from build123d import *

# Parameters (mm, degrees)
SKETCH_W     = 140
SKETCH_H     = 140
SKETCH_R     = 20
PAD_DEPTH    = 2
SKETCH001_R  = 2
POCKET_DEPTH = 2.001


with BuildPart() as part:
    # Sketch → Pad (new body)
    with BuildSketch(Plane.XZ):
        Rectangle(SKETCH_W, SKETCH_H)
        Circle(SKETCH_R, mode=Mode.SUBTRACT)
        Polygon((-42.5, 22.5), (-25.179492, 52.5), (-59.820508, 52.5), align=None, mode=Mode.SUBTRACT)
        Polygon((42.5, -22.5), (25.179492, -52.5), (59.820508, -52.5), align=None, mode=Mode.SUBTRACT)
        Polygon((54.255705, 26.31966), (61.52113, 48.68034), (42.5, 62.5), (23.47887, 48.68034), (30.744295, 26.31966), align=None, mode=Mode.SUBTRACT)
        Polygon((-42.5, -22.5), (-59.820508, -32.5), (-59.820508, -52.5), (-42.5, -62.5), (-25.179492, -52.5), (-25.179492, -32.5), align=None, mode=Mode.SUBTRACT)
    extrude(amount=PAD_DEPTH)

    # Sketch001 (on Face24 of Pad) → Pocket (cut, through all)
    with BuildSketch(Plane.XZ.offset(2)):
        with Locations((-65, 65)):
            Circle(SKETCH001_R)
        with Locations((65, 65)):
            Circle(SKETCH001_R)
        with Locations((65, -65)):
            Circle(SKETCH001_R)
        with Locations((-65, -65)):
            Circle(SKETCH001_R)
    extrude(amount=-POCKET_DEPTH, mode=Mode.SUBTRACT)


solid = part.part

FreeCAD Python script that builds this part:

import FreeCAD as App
import Part
import Sketcher
Q = App.Units.Quantity

doc = App.newDocument("Part")
body = doc.addObject("PartDesign::Body", "Body")

# Sketch on XZ plane
sketch1 = doc.addObject("Sketcher::SketchObject", "Sketch")
body.addObject(sketch1)
sketch1.AttachmentSupport = (doc.XZ_Plane, [""])
sketch1.MapMode = "FlatFace"
sketch1.addGeometry([
    Part.LineSegment(App.Vector(-70, 70, 0), App.Vector(-70, -70, 0)),  # 0
    Part.LineSegment(App.Vector(-70, -70, 0), App.Vector(70, -70, 0)),  # 1
    Part.LineSegment(App.Vector(70, -70, 0), App.Vector(70, 70, 0)),  # 2
    Part.LineSegment(App.Vector(70, 70, 0), App.Vector(-70, 70, 0)),  # 3
    Part.LineSegment(App.Vector(-60, -32, 0), App.Vector(-42, -22, 0)),  # 4
    Part.LineSegment(App.Vector(-42, -22, 0), App.Vector(-25, -32, 0)),  # 5
    Part.LineSegment(App.Vector(-25, -32, 0), App.Vector(-25, -52, 0)),  # 6
    Part.LineSegment(App.Vector(-25, -52, 0), App.Vector(-42, -62, 0)),  # 7
    Part.LineSegment(App.Vector(-42, -62, 0), App.Vector(-60, -52, 0)),  # 8
    Part.LineSegment(App.Vector(-60, -52, 0), App.Vector(-60, -32, 0)),  # 9
    Part.LineSegment(App.Vector(25, -52, 0), App.Vector(42, -22, 0)),  # 10
    Part.LineSegment(App.Vector(42, -22, 0), App.Vector(60, -52, 0)),  # 11
    Part.LineSegment(App.Vector(60, -52, 0), App.Vector(25, -52, 0)),  # 12
    Part.Circle(App.Vector(0, 0, 0), App.Vector(0, 0, 1), 20),  # 13
    Part.LineSegment(App.Vector(-25, 52, 0), App.Vector(-42, 22, 0)),  # 14
    Part.LineSegment(App.Vector(-42, 22, 0), App.Vector(-60, 52, 0)),  # 15
    Part.LineSegment(App.Vector(-60, 52, 0), App.Vector(-25, 52, 0)),  # 16
    Part.LineSegment(App.Vector(62, 49, 0), App.Vector(54, 26, 0)),  # 17
    Part.LineSegment(App.Vector(54, 26, 0), App.Vector(31, 26, 0)),  # 18
    Part.LineSegment(App.Vector(31, 26, 0), App.Vector(23, 49, 0)),  # 19
    Part.LineSegment(App.Vector(23, 49, 0), App.Vector(42, 62, 0)),  # 20
    Part.LineSegment(App.Vector(42, 62, 0), App.Vector(62, 49, 0)),  # 21
], False)
sketch1.addConstraint([
    Sketcher.Constraint("Coincident", 0, 2, 1, 1),
    Sketcher.Constraint("Coincident", 1, 2, 2, 1),
    Sketcher.Constraint("Coincident", 2, 2, 3, 1),
    Sketcher.Constraint("Coincident", 3, 2, 0, 1),
    Sketcher.Constraint("Coincident", 4, 2, 5, 1),
    Sketcher.Constraint("Coincident", 5, 2, 6, 1),
    Sketcher.Constraint("Coincident", 6, 2, 7, 1),
    Sketcher.Constraint("Coincident", 7, 2, 8, 1),
    Sketcher.Constraint("Coincident", 8, 2, 9, 1),
    Sketcher.Constraint("Coincident", 9, 2, 4, 1),
    Sketcher.Constraint("Coincident", 10, 2, 11, 1),
    Sketcher.Constraint("Coincident", 11, 2, 12, 1),
    Sketcher.Constraint("Coincident", 12, 2, 10, 1),
    Sketcher.Constraint("Coincident", 14, 2, 15, 1),
    Sketcher.Constraint("Coincident", 15, 2, 16, 1),
    Sketcher.Constraint("Coincident", 16, 2, 14, 1),
    Sketcher.Constraint("Coincident", 17, 2, 18, 1),
    Sketcher.Constraint("Coincident", 18, 2, 19, 1),
    Sketcher.Constraint("Coincident", 19, 2, 20, 1),
    Sketcher.Constraint("Coincident", 20, 2, 21, 1),
    Sketcher.Constraint("Coincident", 21, 2, 17, 1),
    Sketcher.Constraint("Vertical", 0),
    Sketcher.Constraint("Horizontal", 1),
    Sketcher.Constraint("Vertical", 2),
    Sketcher.Constraint("Horizontal", 3),
    Sketcher.Constraint("Vertical", 6),
    Sketcher.Constraint("Vertical", 9),
    Sketcher.Constraint("Horizontal", 12),
    Sketcher.Constraint("Horizontal", 16),
    Sketcher.Constraint("Horizontal", 18),
    Sketcher.Constraint("Coincident", 13, 3, -1, 1),
    Sketcher.Constraint("Symmetric", 0, 2, 2, 2, -1, 1),
    Sketcher.Constraint("Symmetric", 10, 2, 14, 2, -1, 1),
    Sketcher.Constraint("Symmetric", 11, 2, 15, 2, -1, 1),
    Sketcher.Constraint("Symmetric", 7, 2, 20, 2, -1, 1),
    Sketcher.Constraint("Symmetric", 4, 2, 10, 2, -2),
    Sketcher.Constraint("Symmetric", 8, 2, 11, 2, -2),
    Sketcher.Constraint("Symmetric", 6, 2, 12, 2, -2),
    Sketcher.Constraint("Parallel", 4, 7),
    Sketcher.Constraint("Parallel", 5, 8),
    Sketcher.Constraint("Perpendicular", 8, 10),
    Sketcher.Constraint("Perpendicular", 7, 11),
    Sketcher.Constraint("Parallel", 10, 14),
    Sketcher.Constraint("Horizontal", 5, 2, 9, 2),
    Sketcher.Constraint("Horizontal", 19, 2, 21, 2),
    Sketcher.Constraint("Equal", 3, 0),
    Sketcher.Constraint("Equal", 17, 19),
    Sketcher.Constraint("Equal", 19, 20),
    Sketcher.Constraint("Equal", 20, 21),
    Sketcher.Constraint("Diameter", 13, 40.0),
    Sketcher.Constraint("DistanceX", 1, 1, 1, 2, 140.0),
    Sketcher.Constraint("DistanceY", 6, 2, 6, 1, 20.0),
    Sketcher.Constraint("Angle", 4, Q("30 deg")),
    Sketcher.Constraint("Angle", 17, Q("-107.999999 deg")),
    Sketcher.Constraint("Angle", 20, Q("36 deg")),
    Sketcher.Constraint("DistanceX", 4, 2, 10, 2, 85.0),
    Sketcher.Constraint("DistanceY", 4, 2, 14, 2, 45.0),
    Sketcher.Constraint("DistanceX", 18, 2, 18, 1, 23.51141),
])
pad1 = doc.addObject("PartDesign::Pad", "Pad")
body.addObject(pad1)
pad1.Profile = sketch1
pad1.Length = 2

# Sketch on XZ plane
sketch2 = doc.addObject("Sketcher::SketchObject", "Sketch001")
body.addObject(sketch2)
sketch2.AttachmentSupport = (doc.XZ_Plane, [""])
sketch2.MapMode = "FlatFace"
sketch2.AttachmentOffset = App.Placement(App.Vector(0, 0, 2), App.Rotation())
sketch2.addGeometry([
    Part.Circle(App.Vector(-65, 65, 0), App.Vector(0, 0, 1), 2),
    Part.Circle(App.Vector(65, 65, 0), App.Vector(0, 0, 1), 2),
    Part.Circle(App.Vector(65, -65, 0), App.Vector(0, 0, 1), 2),
    Part.Circle(App.Vector(-65, -65, 0), App.Vector(0, 0, 1), 2),
], False)
sketch2.addConstraint([
    Sketcher.Constraint("Equal", 0, 1),
    Sketcher.Constraint("Equal", 1, 2),
    Sketcher.Constraint("Equal", 2, 3),
    Sketcher.Constraint("Symmetric", 0, 3, 2, 3, -1, 1),
    Sketcher.Constraint("Symmetric", 1, 3, 3, 3, -1, 1),
    Sketcher.Constraint("Symmetric", 0, 3, 1, 3, -2),
    Sketcher.Constraint("Diameter", 0, 4.0),
    Sketcher.Constraint("DistanceX", 0, 3, -1, 1, 65.0),
    Sketcher.Constraint("DistanceY", -1, 1, 0, 3, 65.0),
])
pocket1 = doc.addObject("PartDesign::Pocket", "Pocket")
body.addObject(pocket1)
pocket1.Profile = sketch2
pocket1.Type = "ThroughAll"

doc.recompute()
